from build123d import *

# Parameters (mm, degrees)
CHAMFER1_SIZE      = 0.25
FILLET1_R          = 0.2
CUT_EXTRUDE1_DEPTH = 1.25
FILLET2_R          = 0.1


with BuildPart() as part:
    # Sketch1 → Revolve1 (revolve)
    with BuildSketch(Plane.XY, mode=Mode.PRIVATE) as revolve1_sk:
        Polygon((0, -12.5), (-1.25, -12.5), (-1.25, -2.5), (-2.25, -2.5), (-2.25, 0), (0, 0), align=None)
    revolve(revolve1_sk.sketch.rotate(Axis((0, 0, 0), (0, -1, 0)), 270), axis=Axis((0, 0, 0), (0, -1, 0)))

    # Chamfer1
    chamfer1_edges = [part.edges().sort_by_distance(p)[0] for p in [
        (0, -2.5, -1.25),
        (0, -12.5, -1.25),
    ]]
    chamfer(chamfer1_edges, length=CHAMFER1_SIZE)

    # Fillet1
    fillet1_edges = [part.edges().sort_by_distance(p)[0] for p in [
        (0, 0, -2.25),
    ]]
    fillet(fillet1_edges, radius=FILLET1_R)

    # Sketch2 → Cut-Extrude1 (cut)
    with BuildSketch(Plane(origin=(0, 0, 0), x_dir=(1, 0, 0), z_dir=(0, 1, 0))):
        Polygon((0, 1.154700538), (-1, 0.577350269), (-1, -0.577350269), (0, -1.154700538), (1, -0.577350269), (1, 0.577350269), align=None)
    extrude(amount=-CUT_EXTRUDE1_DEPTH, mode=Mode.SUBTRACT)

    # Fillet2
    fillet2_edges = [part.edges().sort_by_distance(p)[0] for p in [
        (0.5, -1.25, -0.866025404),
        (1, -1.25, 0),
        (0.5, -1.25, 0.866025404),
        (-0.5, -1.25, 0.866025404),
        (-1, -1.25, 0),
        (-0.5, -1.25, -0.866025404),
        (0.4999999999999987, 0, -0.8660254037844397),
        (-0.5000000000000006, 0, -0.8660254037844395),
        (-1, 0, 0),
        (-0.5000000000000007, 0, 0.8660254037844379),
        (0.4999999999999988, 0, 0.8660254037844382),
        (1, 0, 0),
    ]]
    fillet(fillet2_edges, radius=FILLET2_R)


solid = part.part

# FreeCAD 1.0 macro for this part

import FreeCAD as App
import Part
import Sketcher
Q = App.Units.Quantity


def edges_at(feature, points):
    """Names of the edges that pass closest to the given points."""
    edges = feature.Shape.Edges
    near = lambda p: min(range(len(edges)), key=lambda i: edges[i].distToShape(Part.Vertex(*p))[0])
    return sorted({f"Edge{near(p) + 1}" for p in points})

doc = App.newDocument("Part")
params = doc.addObject("Spreadsheet::Sheet", "Params")
for row, (alias, value) in enumerate([
    ("sketch1_width", "1 mm"),
    ("sketch1_height", "10 mm"),
    ("sketch1_height2", "12.5 mm"),
    ("sketch1_width2", "1.25 mm"),
    ("revolution_angle", "360 deg"),
    ("chamfer_size", "0.25 mm"),
    ("fillet_radius", "0.2 mm"),
    ("pocket1_length", "1.25 mm"),
    ("fillet2_radius", "0.1 mm"),
], start=1):
    params.set(f"A{row}", alias)
    params.set(f"B{row}", "=" + value)
    params.setAlias(f"B{row}", alias)

body = doc.addObject("PartDesign::Body", "Body")

# Sketch on XY plane
sketch1 = doc.addObject("Sketcher::SketchObject", "Sketch")
body.addObject(sketch1)
sketch1.AttachmentSupport = (doc.XY_Plane, [""])
sketch1.MapMode = "FlatFace"
sketch1.addGeometry(Part.LineSegment(App.Vector(-1.2, -12.5, 0), App.Vector(0, -12.5, 0)), False)
sketch1.addGeometry(Part.LineSegment(App.Vector(0, -12.5, 0), App.Vector(0, 0, 0)), False)
sketch1.addGeometry(Part.LineSegment(App.Vector(0, 0, 0), App.Vector(-2.2, 0, 0)), False)
sketch1.addGeometry(Part.LineSegment(App.Vector(-2.2, 0, 0), App.Vector(-2.2, -2.5, 0)), False)
sketch1.addGeometry(Part.LineSegment(App.Vector(-2.2, -2.5, 0), App.Vector(-1.2, -2.5, 0)), False)
sketch1.addGeometry(Part.LineSegment(App.Vector(-1.2, -2.5, 0), App.Vector(-1.2, -12.5, 0)), False)
sketch1.addConstraint(Sketcher.Constraint("Coincident", 0, 2, 1, 1))
sketch1.addConstraint(Sketcher.Constraint("Coincident", 1, 2, 2, 1))
sketch1.addConstraint(Sketcher.Constraint("Coincident", 2, 2, 3, 1))
sketch1.addConstraint(Sketcher.Constraint("Coincident", 3, 2, 4, 1))
sketch1.addConstraint(Sketcher.Constraint("Coincident", 4, 2, 5, 1))
sketch1.addConstraint(Sketcher.Constraint("Coincident", 5, 2, 0, 1))
sketch1.addConstraint(Sketcher.Constraint("Horizontal", 0))
sketch1.addConstraint(Sketcher.Constraint("Vertical", 1))
sketch1.addConstraint(Sketcher.Constraint("Horizontal", 2))
sketch1.addConstraint(Sketcher.Constraint("Vertical", 3))
sketch1.addConstraint(Sketcher.Constraint("Horizontal", 4))
sketch1.addConstraint(Sketcher.Constraint("Vertical", 5))
sketch1.addConstraint(Sketcher.Constraint("Coincident", 1, 2, -1, 1))
sketch1.addConstraint(Sketcher.Constraint("DistanceX", 4, 1, 4, 2, Q("1 mm")))
sketch1.addConstraint(Sketcher.Constraint("DistanceY", 5, 2, 5, 1, Q("10 mm")))
sketch1.addConstraint(Sketcher.Constraint("DistanceY", 1, 1, 1, 2, Q("12.5 mm")))
sketch1.addConstraint(Sketcher.Constraint("DistanceX", 0, 1, 0, 2, Q("1.25 mm")))
sketch1.setExpression("Constraints[13]", "Params.sketch1_width")
sketch1.setExpression("Constraints[14]", "Params.sketch1_height")
sketch1.setExpression("Constraints[15]", "Params.sketch1_height2")
sketch1.setExpression("Constraints[16]", "Params.sketch1_width2")
revolution = doc.addObject("PartDesign::Revolution", "Revolution")
body.addObject(revolution)
revolution.Profile = sketch1
revolution.ReferenceAxis = (sketch1, ["V_Axis"])
revolution.setExpression("Angle", "Params.revolution_angle")
doc.recompute()

chamfer = doc.addObject("PartDesign::Chamfer", "Chamfer")
body.addObject(chamfer)
chamfer.Base = (revolution, edges_at(revolution, [(0, -2.5, -1.25), (0, -12.5, -1.25)]))
chamfer.setExpression("Size", "Params.chamfer_size")
doc.recompute()

fillet = doc.addObject("PartDesign::Fillet", "Fillet")
body.addObject(fillet)
fillet.Base = (chamfer, edges_at(chamfer, [(0, 0, -2.25)]))
fillet.setExpression("Radius", "Params.fillet_radius")

# Sketch on XZ plane
sketch2 = doc.addObject("Sketcher::SketchObject", "Sketch001")
body.addObject(sketch2)
sketch2.AttachmentSupport = (doc.XZ_Plane, [""])
sketch2.MapMode = "FlatFace"
sketch2.addGeometry(Part.LineSegment(App.Vector(0, -1.2, 0), App.Vector(-1, -0.6, 0)), False)
sketch2.addGeometry(Part.LineSegment(App.Vector(-1, -0.6, 0), App.Vector(-1, 0.6, 0)), False)
sketch2.addGeometry(Part.LineSegment(App.Vector(-1, 0.6, 0), App.Vector(0, 1.2, 0)), False)
sketch2.addGeometry(Part.LineSegment(App.Vector(0, 1.2, 0), App.Vector(1, 0.6, 0)), False)
sketch2.addGeometry(Part.LineSegment(App.Vector(1, 0.6, 0), App.Vector(1, -0.6, 0)), False)
sketch2.addGeometry(Part.LineSegment(App.Vector(1, -0.6, 0), App.Vector(0, -1.2, 0)), False)
sketch2.addConstraint(Sketcher.Constraint("Coincident", 0, 2, 1, 1))
sketch2.addConstraint(Sketcher.Constraint("Coincident", 1, 2, 2, 1))
sketch2.addConstraint(Sketcher.Constraint("Coincident", 2, 2, 3, 1))
sketch2.addConstraint(Sketcher.Constraint("Coincident", 3, 2, 4, 1))
sketch2.addConstraint(Sketcher.Constraint("Coincident", 4, 2, 5, 1))
sketch2.addConstraint(Sketcher.Constraint("Coincident", 5, 2, 0, 1))
sketch2.addConstraint(Sketcher.Constraint("Vertical", 1))
sketch2.addConstraint(Sketcher.Constraint("Vertical", 4))
sketch2.addConstraint(Sketcher.Constraint("Symmetric", 0, 2, 3, 2, -1, 1))
sketch2.addConstraint(Sketcher.Constraint("Symmetric", 2, 2, 5, 2, -1, 1))
sketch2.addConstraint(Sketcher.Constraint("PointOnObject", 2, 2, -2))
sketch2.addConstraint(Sketcher.Constraint("Parallel", 2, 5))
sketch2.addConstraint(Sketcher.Constraint("Horizontal", 1, 2, 3, 2))
sketch2.addConstraint(Sketcher.Constraint("Angle", 0, Q("150 deg")))
sketch2.addConstraint(Sketcher.Constraint("DistanceX", 0, 2, -1, 1, Q("1 mm")))
sketch2.addConstraint(Sketcher.Constraint("DistanceY", 1, 1, 1, 2, Q("1.154701 mm")))
pocket1 = doc.addObject("PartDesign::Pocket", "Pocket")
body.addObject(pocket1)
pocket1.Profile = sketch2
pocket1.setExpression("Length", "Params.pocket1_length")
pocket1.Reversed = True
doc.recompute()

fillet2 = doc.addObject("PartDesign::Fillet", "Fillet001")
body.addObject(fillet2)
fillet2.Base = (pocket1, edges_at(pocket1, [
    (0.5, -1.25, -0.866),
    (1, -1.25, 0),
    (0.5, -1.25, 0.866),
    (-0.5, -1.25, 0.866),
    (-1, -1.25, 0),
    (-0.5, -1.25, -0.866),
    (0.5, 0, -0.866),
    (-0.5, 0, -0.866),
    (-1, 0, 0),
    (-0.5, 0, 0.866),
    (0.5, 0, 0.866),
    (1, 0, 0),
]))
fillet2.setExpression("Radius", "Params.fillet2_radius")

doc.recompute()
